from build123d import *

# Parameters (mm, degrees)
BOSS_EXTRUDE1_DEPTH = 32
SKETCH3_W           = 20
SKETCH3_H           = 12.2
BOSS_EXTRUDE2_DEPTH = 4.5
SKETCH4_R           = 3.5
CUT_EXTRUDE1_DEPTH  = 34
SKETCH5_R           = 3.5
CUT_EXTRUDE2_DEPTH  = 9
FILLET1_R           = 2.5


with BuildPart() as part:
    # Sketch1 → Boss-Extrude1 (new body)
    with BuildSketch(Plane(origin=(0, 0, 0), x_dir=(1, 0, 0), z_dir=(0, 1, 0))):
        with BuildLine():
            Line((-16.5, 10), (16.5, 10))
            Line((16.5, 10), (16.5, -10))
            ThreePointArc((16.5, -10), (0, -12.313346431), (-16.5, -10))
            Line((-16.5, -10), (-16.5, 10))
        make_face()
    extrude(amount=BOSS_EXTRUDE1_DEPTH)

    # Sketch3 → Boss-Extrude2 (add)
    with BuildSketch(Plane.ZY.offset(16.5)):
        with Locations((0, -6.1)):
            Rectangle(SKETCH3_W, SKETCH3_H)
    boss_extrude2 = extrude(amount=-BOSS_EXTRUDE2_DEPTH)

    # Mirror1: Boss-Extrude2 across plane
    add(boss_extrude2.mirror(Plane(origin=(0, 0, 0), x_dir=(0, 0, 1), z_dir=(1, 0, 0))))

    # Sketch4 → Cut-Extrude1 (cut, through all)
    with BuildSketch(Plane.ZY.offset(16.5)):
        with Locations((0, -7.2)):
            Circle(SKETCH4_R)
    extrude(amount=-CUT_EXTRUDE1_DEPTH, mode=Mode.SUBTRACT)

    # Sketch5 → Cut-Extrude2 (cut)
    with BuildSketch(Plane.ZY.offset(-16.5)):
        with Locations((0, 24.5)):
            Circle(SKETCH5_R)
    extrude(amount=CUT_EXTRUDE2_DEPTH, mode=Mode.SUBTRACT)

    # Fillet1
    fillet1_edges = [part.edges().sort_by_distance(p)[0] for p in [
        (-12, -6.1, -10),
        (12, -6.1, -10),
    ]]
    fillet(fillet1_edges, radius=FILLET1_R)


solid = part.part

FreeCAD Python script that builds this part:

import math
import FreeCAD as App
import Part
import Sketcher
from FreeCAD import Vector


def edges_at(feature, points):
    """Names of the edges that pass closest to the given points."""
    edges = feature.Shape.Edges
    near = lambda p: min(range(len(edges)), key=lambda i: edges[i].distToShape(Part.Vertex(*p))[0])
    return sorted({f"Edge{near(p) + 1}" for p in points})


def add_polygon(sketch, points):
    """Adds a closed chain of lines whose ends are joined by coincident constraints."""
    first, n = sketch.GeometryCount, len(points)
    for a, b in zip(points, points[1:] + points[:1]):
        sketch.addGeometry(Part.LineSegment(App.Vector(*a, 0), App.Vector(*b, 0)), False)
    for i in range(n):
        sketch.addConstraint(Sketcher.Constraint("Coincident", first + i, 2, first + (i + 1) % n, 1))

doc = App.newDocument("Part")
body = doc.addObject("PartDesign::Body", "Body")

sketch1 = body.newObject("Sketcher::SketchObject", "Sketch")
sketch1.AttachmentSupport = (doc.getObject("XZ_Plane"), [""])
sketch1.MapMode = "FlatFace"
sketch1.addGeometry([
    Part.LineSegment(Vector(16, -10, 0), Vector(-16, -10, 0)),
    Part.LineSegment(Vector(-16, -10, 0), Vector(-16, 10, 0)),
    Part.ArcOfCircle(Part.Circle(Vector(0, -48, 0), Vector(0, 0, 1), 60), math.radians(74), math.radians(106)),
    Part.LineSegment(Vector(16, 10, 0), Vector(16, -10, 0)),
], False)
sketch1.addConstraint([
    Sketcher.Constraint("Coincident", 0, 2, 1, 1),
    Sketcher.Constraint("Coincident", 1, 2, 2, 2),
    Sketcher.Constraint("Coincident", 2, 1, 3, 1),
    Sketcher.Constraint("Coincident", 3, 2, 0, 1),
    Sketcher.Constraint("Horizontal", 0),
    Sketcher.Constraint("Vertical", 1),
    Sketcher.Constraint("Vertical", 3),
    Sketcher.Constraint("Symmetric", 0, 2, 2, 1, -1, 1),
    Sketcher.Constraint("PointOnObject", 2, 3, -2),
    Sketcher.Constraint("Radius", 2, 60.0),
    Sketcher.Constraint("DistanceX", 0, 2, 0, 1, 33.0),
    Sketcher.Constraint("DistanceY", 1, 1, 1, 2, 20.0),
])
pad1 = body.newObject("PartDesign::Pad", "Pad")
pad1.Profile = sketch1
pad1.Length = 32
pad1.Reversed = True

sketch2 = body.newObject("Sketcher::SketchObject", "Sketch001")
sketch2.AttachmentSupport = (doc.getObject("YZ_Plane"), [""])
sketch2.MapMode = "FlatFace"
sketch2.AttachmentOffset = App.Placement(Vector(0, 0, -16.5), App.Rotation())
add_polygon(sketch2, [(0, -10), (-12, -10), (-12, 10), (0, 10)])
sketch2.addConstraint([
    Sketcher.Constraint("Horizontal", 0),
    Sketcher.Constraint("Vertical", 1),
    Sketcher.Constraint("Horizontal", 2),
    Sketcher.Constraint("Vertical", 3),
    Sketcher.Constraint("Symmetric", 2, 2, 3, 2, -1, 1),
    Sketcher.Constraint("DistanceY", 1, 1, 1, 2, 20.0),
    Sketcher.Constraint("DistanceX", 0, 2, 0, 1, 12.2),
])
pad2 = body.newObject("PartDesign::Pad", "Pad001")
pad2.Profile = sketch2
pad2.Length = 4.5
doc.recompute()

mirrored = body.newObject("PartDesign::Mirrored", "Mirrored")
mirrored.Originals = [pad2]
mirrored.MirrorPlane = (doc.getObject("YZ_Plane"), [""])
body.Tip = mirrored

sketch3 = body.newObject("Sketcher::SketchObject", "Sketch002")
sketch3.AttachmentSupport = (doc.getObject("YZ_Plane"), [""])
sketch3.MapMode = "FlatFace"
sketch3.AttachmentOffset = App.Placement(Vector(0, 0, -16.5), App.Rotation())
sketch3.addGeometry(Part.Circle(Vector(-7.2, 0, 0), Vector(0, 0, 1), 3.5), False)
sketch3.addConstraint([
    Sketcher.Constraint("PointOnObject", 0, 3, -1),
    Sketcher.Constraint("Diameter", 0, 7.0),
    Sketcher.Constraint("DistanceX", 0, 3, -1, 1, 7.2),
])
pocket1 = body.newObject("PartDesign::Pocket", "Pocket")
pocket1.Profile = sketch3
pocket1.Type = "ThroughAll"
pocket1.Reversed = True

sketch4 = body.newObject("Sketcher::SketchObject", "Sketch003")
sketch4.AttachmentSupport = (doc.getObject("YZ_Plane"), [""])
sketch4.MapMode = "FlatFace"
sketch4.AttachmentOffset = App.Placement(Vector(0, 0, 16.5), App.Rotation())
sketch4.addGeometry(Part.Circle(Vector(24.5, 0, 0), Vector(0, 0, 1), 3.5), False)
sketch4.addConstraint([
    Sketcher.Constraint("PointOnObject", 0, 3, -1),
    Sketcher.Constraint("Diameter", 0, 7.0),
    Sketcher.Constraint("DistanceX", -1, 1, 0, 3, 24.5),
])
pocket2 = body.newObject("PartDesign::Pocket", "Pocket001")
pocket2.Profile = sketch4
pocket2.Length = 9
doc.recompute()

fillet = body.newObject("PartDesign::Fillet", "Fillet")
fillet.Base = (pocket2, edges_at(pocket2, [(-12, -6.1, -10), (12, -6.1, -10)]))
fillet.Radius = 2.5

doc.recompute()
